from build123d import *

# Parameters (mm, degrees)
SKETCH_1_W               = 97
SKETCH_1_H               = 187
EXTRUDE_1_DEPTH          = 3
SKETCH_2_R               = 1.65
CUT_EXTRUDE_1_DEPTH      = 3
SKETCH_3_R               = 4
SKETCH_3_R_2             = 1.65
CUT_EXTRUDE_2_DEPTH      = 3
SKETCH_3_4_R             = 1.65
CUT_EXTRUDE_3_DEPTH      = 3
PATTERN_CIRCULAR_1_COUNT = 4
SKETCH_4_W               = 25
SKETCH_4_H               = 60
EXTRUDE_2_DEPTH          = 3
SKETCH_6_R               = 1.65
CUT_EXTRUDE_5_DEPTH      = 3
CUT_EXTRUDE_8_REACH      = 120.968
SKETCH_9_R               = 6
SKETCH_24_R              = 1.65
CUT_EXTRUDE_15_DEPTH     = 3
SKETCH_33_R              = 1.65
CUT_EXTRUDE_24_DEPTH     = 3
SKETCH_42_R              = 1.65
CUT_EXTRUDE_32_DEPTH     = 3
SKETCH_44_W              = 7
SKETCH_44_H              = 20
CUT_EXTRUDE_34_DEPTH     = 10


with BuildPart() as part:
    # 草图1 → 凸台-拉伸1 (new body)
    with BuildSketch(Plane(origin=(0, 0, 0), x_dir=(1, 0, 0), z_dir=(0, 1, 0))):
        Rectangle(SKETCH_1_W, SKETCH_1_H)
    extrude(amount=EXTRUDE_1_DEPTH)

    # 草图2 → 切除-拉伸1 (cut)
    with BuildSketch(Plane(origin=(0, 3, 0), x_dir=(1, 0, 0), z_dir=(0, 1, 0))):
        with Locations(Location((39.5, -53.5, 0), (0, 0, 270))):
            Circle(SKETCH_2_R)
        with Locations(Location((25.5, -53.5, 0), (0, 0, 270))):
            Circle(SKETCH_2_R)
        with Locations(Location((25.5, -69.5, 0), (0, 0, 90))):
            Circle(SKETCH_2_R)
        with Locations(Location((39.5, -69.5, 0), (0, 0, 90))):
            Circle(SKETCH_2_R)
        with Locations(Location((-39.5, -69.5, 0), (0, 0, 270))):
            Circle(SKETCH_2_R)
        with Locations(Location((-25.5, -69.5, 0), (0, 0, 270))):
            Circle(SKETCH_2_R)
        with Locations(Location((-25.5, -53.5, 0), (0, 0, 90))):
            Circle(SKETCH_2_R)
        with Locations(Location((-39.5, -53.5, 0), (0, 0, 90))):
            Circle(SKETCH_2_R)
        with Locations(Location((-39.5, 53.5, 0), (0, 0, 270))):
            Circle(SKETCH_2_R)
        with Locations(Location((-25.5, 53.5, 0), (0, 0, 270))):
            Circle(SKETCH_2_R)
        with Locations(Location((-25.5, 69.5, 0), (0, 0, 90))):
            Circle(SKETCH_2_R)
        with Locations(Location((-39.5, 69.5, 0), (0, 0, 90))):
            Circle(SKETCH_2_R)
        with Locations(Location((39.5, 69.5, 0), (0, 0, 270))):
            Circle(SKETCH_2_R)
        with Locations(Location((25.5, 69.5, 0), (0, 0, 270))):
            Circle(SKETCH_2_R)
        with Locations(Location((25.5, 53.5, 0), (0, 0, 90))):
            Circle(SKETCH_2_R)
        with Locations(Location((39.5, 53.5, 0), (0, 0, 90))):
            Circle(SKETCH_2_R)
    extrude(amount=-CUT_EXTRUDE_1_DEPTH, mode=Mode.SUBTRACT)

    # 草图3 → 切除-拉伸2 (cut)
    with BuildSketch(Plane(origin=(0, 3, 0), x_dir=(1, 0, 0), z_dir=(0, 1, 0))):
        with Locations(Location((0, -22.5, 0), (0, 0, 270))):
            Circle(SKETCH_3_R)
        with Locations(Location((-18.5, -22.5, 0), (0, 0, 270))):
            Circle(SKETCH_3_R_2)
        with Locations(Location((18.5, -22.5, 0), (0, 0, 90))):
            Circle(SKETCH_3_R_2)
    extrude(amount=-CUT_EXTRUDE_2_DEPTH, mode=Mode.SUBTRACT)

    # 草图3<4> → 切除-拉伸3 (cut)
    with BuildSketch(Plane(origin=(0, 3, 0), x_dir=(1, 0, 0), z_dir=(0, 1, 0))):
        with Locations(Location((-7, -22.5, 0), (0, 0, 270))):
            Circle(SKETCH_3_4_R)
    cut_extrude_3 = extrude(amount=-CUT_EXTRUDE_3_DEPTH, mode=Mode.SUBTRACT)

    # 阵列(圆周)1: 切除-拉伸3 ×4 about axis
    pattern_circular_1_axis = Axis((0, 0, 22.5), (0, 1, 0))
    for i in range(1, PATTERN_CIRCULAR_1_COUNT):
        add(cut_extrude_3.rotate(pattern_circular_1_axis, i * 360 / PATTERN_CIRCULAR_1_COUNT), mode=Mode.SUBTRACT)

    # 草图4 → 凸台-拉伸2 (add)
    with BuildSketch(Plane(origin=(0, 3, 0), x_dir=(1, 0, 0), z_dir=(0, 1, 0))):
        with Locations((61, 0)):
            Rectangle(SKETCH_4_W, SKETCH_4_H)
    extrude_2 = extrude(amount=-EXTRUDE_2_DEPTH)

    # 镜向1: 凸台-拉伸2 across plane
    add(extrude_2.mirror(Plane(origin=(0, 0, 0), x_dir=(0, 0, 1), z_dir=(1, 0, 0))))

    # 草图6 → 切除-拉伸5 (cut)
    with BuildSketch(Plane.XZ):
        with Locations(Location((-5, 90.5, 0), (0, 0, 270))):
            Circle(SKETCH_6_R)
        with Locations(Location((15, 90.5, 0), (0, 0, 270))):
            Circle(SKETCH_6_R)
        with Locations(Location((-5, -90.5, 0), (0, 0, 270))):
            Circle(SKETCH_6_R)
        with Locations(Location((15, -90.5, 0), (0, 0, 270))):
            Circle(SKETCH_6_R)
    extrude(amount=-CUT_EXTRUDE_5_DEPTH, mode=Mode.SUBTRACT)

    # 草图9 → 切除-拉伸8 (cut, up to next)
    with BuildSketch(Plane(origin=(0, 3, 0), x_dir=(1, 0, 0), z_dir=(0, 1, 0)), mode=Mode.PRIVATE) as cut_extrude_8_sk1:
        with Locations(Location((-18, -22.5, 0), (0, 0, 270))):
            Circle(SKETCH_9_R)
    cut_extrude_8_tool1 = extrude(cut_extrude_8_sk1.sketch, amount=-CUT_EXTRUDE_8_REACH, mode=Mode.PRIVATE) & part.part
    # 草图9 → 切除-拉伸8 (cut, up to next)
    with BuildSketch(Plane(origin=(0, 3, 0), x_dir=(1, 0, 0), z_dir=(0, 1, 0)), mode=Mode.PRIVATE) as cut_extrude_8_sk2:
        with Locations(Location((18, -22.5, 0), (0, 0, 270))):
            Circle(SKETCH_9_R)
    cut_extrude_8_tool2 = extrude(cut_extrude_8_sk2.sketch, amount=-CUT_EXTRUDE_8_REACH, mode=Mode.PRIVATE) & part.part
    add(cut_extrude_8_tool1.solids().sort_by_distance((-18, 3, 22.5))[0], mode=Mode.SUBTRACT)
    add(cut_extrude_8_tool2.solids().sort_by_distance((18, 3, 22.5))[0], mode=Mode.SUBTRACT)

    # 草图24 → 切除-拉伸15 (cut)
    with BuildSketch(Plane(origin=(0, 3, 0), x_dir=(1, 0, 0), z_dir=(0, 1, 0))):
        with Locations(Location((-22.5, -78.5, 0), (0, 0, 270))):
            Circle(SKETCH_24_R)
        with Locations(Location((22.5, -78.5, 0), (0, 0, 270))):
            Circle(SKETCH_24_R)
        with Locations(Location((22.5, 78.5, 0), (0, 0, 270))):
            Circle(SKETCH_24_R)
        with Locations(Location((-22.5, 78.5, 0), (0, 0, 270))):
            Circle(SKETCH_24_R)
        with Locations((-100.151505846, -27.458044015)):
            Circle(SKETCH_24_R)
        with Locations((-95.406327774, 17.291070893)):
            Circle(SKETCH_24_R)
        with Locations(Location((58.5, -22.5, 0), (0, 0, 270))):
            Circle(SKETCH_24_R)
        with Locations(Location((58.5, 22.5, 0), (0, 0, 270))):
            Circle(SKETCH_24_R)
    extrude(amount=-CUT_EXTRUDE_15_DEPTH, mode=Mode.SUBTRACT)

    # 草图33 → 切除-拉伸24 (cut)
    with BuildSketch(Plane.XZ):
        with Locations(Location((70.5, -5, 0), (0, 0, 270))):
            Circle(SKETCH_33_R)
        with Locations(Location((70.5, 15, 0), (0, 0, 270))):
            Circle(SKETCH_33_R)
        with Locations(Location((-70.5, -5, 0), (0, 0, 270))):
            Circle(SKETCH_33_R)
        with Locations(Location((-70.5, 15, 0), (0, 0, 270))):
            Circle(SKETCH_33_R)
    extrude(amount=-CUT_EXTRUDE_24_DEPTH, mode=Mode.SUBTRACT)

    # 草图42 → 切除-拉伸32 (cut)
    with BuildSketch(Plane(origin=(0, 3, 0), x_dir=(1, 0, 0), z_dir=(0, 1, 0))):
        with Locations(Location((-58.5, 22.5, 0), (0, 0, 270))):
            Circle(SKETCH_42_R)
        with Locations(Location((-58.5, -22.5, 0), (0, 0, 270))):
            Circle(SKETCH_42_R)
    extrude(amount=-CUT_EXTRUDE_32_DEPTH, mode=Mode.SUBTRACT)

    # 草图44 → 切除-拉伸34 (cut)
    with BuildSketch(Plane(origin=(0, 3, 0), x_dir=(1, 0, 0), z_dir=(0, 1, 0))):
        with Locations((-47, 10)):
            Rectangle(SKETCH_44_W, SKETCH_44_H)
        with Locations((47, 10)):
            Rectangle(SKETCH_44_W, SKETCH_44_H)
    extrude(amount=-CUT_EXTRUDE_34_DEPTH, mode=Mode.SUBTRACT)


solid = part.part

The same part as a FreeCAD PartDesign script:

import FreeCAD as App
import Part
import Sketcher

V = App.Vector
Q = App.Units.Quantity


def add_polygon(sketch, points):
    """Adds a closed chain of lines whose ends are joined by coincident constraints."""
    first, n = sketch.GeometryCount, len(points)
    for a, b in zip(points, points[1:] + points[:1]):
        sketch.addGeometry(Part.LineSegment(App.Vector(*a, 0), App.Vector(*b, 0)), False)
    for i in range(n):
        sketch.addConstraint(Sketcher.Constraint("Coincident", first + i, 2, first + (i + 1) % n, 1))

doc = App.newDocument("Part")
body = doc.addObject("PartDesign::Body", "Body")

# Sketch on XZ plane
sketch1 = body.newObject("Sketcher::SketchObject", "Sketch")
sketch1.AttachmentSupport = (doc.getObject("XZ_Plane"), [""])
sketch1.MapMode = "FlatFace"
add_polygon(sketch1, [(-48, -94), (-48, 94), (48, 94), (48, -94)])  # lines 0-3
sketch1.addConstraint([
    Sketcher.Constraint("Vertical", 0),
    Sketcher.Constraint("Horizontal", 1),
    Sketcher.Constraint("Vertical", 2),
    Sketcher.Constraint("Horizontal", 3),
    Sketcher.Constraint("Symmetric", 0, 2, 2, 2, -1, 1),
    Sketcher.Constraint("DistanceX", 1, 1, 1, 2, Q("97 mm")),
    Sketcher.Constraint("DistanceY", 0, 1, 0, 2, Q("187 mm")),
])
pad1 = body.newObject("PartDesign::Pad", "Pad")
pad1.Profile = sketch1
pad1.Length = 3
pad1.Reversed = True

# Sketch on XZ plane
sketch2 = body.newObject("Sketcher::SketchObject", "Sketch001")
sketch2.AttachmentSupport = (doc.getObject("XZ_Plane"), [""])
sketch2.MapMode = "FlatFace"
sketch2.AttachmentOffset = App.Placement(V(0, 0, -3), App.Rotation())
sketch2.addGeometry([
    Part.Circle(V(39.5, 53.5, 0), V(0, 0, 1), 1.6),  # 0
    Part.Circle(V(25.5, 53.5, 0), V(0, 0, 1), 1.6),  # 1
    Part.Circle(V(25.5, 69.5, 0), V(0, 0, 1), 1.6),  # 2
    Part.Circle(V(39.5, 69.5, 0), V(0, 0, 1), 1.6),  # 3
    Part.Circle(V(-39.5, 69.5, 0), V(0, 0, 1), 1.6),  # 4
    Part.Circle(V(-25.5, 69.5, 0), V(0, 0, 1), 1.6),  # 5
    Part.Circle(V(-25.5, 53.5, 0), V(0, 0, 1), 1.6),  # 6
    Part.Circle(V(-39.5, 53.5, 0), V(0, 0, 1), 1.6),  # 7
    Part.Circle(V(-39.5, -53.5, 0), V(0, 0, 1), 1.6),  # 8
    Part.Circle(V(-25.5, -53.5, 0), V(0, 0, 1), 1.6),  # 9
    Part.Circle(V(-25.5, -69.5, 0), V(0, 0, 1), 1.6),  # 10
    Part.Circle(V(-39.5, -69.5, 0), V(0, 0, 1), 1.6),  # 11
    Part.Circle(V(39.5, -69.5, 0), V(0, 0, 1), 1.6),  # 12
    Part.Circle(V(25.5, -69.5, 0), V(0, 0, 1), 1.6),  # 13
    Part.Circle(V(25.5, -53.5, 0), V(0, 0, 1), 1.6),  # 14
    Part.Circle(V(39.5, -53.5, 0), V(0, 0, 1), 1.6),  # 15
], False)
sketch2.addConstraint([
    Sketcher.Constraint("Equal", 0, 1),
    Sketcher.Constraint("Equal", 1, 2),
    Sketcher.Constraint("Equal", 2, 3),
    Sketcher.Constraint("Equal", 3, 4),
    Sketcher.Constraint("Equal", 4, 5),
    Sketcher.Constraint("Equal", 5, 6),
    Sketcher.Constraint("Equal", 6, 7),
    Sketcher.Constraint("Equal", 7, 8),
    Sketcher.Constraint("Equal", 8, 9),
    Sketcher.Constraint("Equal", 9, 10),
    Sketcher.Constraint("Equal", 10, 11),
    Sketcher.Constraint("Equal", 11, 12),
    Sketcher.Constraint("Equal", 12, 13),
    Sketcher.Constraint("Equal", 13, 14),
    Sketcher.Constraint("Equal", 14, 15),
    Sketcher.Constraint("Symmetric", 0, 3, 8, 3, -1, 1),
    Sketcher.Constraint("Symmetric", 1, 3, 9, 3, -1, 1),
    Sketcher.Constraint("Symmetric", 2, 3, 10, 3, -1, 1),
    Sketcher.Constraint("Symmetric", 3, 3, 11, 3, -1, 1),
    Sketcher.Constraint("Symmetric", 4, 3, 12, 3, -1, 1),
    Sketcher.Constraint("Symmetric", 5, 3, 13, 3, -1, 1),
    Sketcher.Constraint("Symmetric", 6, 3, 14, 3, -1, 1),
    Sketcher.Constraint("Symmetric", 7, 3, 15, 3, -1, 1),
    Sketcher.Constraint("Symmetric", 3, 3, 4, 3, -2),
    Sketcher.Constraint("Symmetric", 2, 3, 5, 3, -2),
    Sketcher.Constraint("Symmetric", 1, 3, 6, 3, -2),
    Sketcher.Constraint("Symmetric", 0, 3, 7, 3, -2),
    Sketcher.Constraint("Horizontal", 0, 3, 1, 3),
    Sketcher.Constraint("Horizontal", 2, 3, 3, 3),
    Sketcher.Constraint("Vertical", 1, 3, 2, 3),
    Sketcher.Constraint("Vertical", 0, 3, 3, 3),
    Sketcher.Constraint("Diameter", 0, Q("3.3 mm")),
    Sketcher.Constraint("DistanceX", 1, 3, 0, 3, Q("14 mm")),
    Sketcher.Constraint("DistanceY", 1, 3, 2, 3, Q("16 mm")),
    Sketcher.Constraint("DistanceX", 4, 3, 2, 3, Q("65 mm")),
    Sketcher.Constraint("DistanceY", 8, 3, 7, 3, Q("107 mm")),
])
pocket1 = body.newObject("PartDesign::Pocket", "Pocket")
pocket1.Profile = sketch2
pocket1.Length = 3
pocket1.Reversed = True

# Sketch on XZ plane
sketch3 = body.newObject("Sketcher::SketchObject", "Sketch002")
sketch3.AttachmentSupport = (doc.getObject("XZ_Plane"), [""])
sketch3.MapMode = "FlatFace"
sketch3.AttachmentOffset = App.Placement(V(0, 0, -3), App.Rotation())
sketch3.addGeometry([
    Part.Circle(V(0, 22.5, 0), V(0, 0, 1), 4),
    Part.Circle(V(-18.5, 22.5, 0), V(0, 0, 1), 1.6),
    Part.Circle(V(18.5, 22.5, 0), V(0, 0, 1), 1.6),
], False)
sketch3.addConstraint([
    Sketcher.Constraint("Equal", 1, 2),
    Sketcher.Constraint("Symmetric", 1, 3, 2, 3, -2),
    Sketcher.Constraint("PointOnObject", 0, 3, -2),
    Sketcher.Constraint("Horizontal", 0, 3, 1, 3),
    Sketcher.Constraint("Diameter", 0, Q("8 mm")),
    Sketcher.Constraint("Diameter", 1, Q("3.3 mm")),
    Sketcher.Constraint("DistanceX", 1, 3, 2, 3, Q("37 mm")),
    Sketcher.Constraint("DistanceY", -1, 1, 0, 3, Q("22.5 mm")),
])
pocket2 = body.newObject("PartDesign::Pocket", "Pocket001")
pocket2.Profile = sketch3
pocket2.Length = 3
pocket2.Reversed = True

# Sketch on XZ plane
sketch4 = body.newObject("Sketcher::SketchObject", "Sketch003")
sketch4.AttachmentSupport = (doc.getObject("XZ_Plane"), [""])
sketch4.MapMode = "FlatFace"
sketch4.AttachmentOffset = App.Placement(V(0, 0, -3), App.Rotation())
sketch4.addGeometry(Part.Circle(V(-7, 22.5, 0), V(0, 0, 1), 1.6), False)
sketch4.addConstraint([
    Sketcher.Constraint("Diameter", 0, Q("3.3 mm")),
    Sketcher.Constraint("DistanceX", 0, 3, -1, 1, Q("7 mm")),
    Sketcher.Constraint("DistanceY", -1, 1, 0, 3, Q("22.5 mm")),
])
pocket3 = body.newObject("PartDesign::Pocket", "Pocket002")
pocket3.Profile = sketch4
pocket3.Length = 3
pocket3.Reversed = True
doc.recompute()

datumline = body.newObject("PartDesign::Line", "DatumLine")
datumline.Placement = App.Placement(V(0, 0, 22.5), App.Rotation(V(0, 0, 1), V(0, 1, 0)))
polarpattern = body.newObject("PartDesign::PolarPattern", "PolarPattern")
polarpattern.Originals = [pocket3]
polarpattern.Axis = (datumline, [""])
polarpattern.Angle = 360
polarpattern.Occurrences = 4
body.Tip = polarpattern

# Sketch on XZ plane
sketch5 = body.newObject("Sketcher::SketchObject", "Sketch004")
sketch5.AttachmentSupport = (doc.getObject("XZ_Plane"), [""])
sketch5.MapMode = "FlatFace"
sketch5.AttachmentOffset = App.Placement(V(0, 0, -3), App.Rotation())
add_polygon(sketch5, [(48, -30), (48, 30), (74, 30), (74, -30)])  # lines 0-3
sketch5.addConstraint([
    Sketcher.Constraint("Vertical", 0),
    Sketcher.Constraint("Horizontal", 1),
    Sketcher.Constraint("Vertical", 2),
    Sketcher.Constraint("Horizontal", 3),
    Sketcher.Constraint("DistanceX", 1, 1, 1, 2, Q("25 mm")),
    Sketcher.Constraint("DistanceY", 0, 1, 0, 2, Q("60 mm")),
    Sketcher.Constraint("DistanceY", -1, 1, 0, 2, Q("30 mm")),
    Sketcher.Constraint("DistanceX", -1, 1, 0, 2, Q("48.5 mm")),
])
pad2 = body.newObject("PartDesign::Pad", "Pad001")
pad2.Profile = sketch5
pad2.Length = 3
doc.recompute()

mirrored = body.newObject("PartDesign::Mirrored", "Mirrored")
mirrored.Originals = [pad2]
mirrored.MirrorPlane = (doc.getObject("YZ_Plane"), [""])
body.Tip = mirrored

# Sketch on XZ plane
sketch6 = body.newObject("Sketcher::SketchObject", "Sketch005")
sketch6.AttachmentSupport = (doc.getObject("XZ_Plane"), [""])
sketch6.MapMode = "FlatFace"
sketch6.addGeometry([
    Part.Circle(V(-5, 90.5, 0), V(0, 0, 1), 1.6),
    Part.Circle(V(15, 90.5, 0), V(0, 0, 1), 1.6),
    Part.Circle(V(-5, -90.5, 0), V(0, 0, 1), 1.6),
    Part.Circle(V(15, -90.5, 0), V(0, 0, 1), 1.6),
], False)
sketch6.addConstraint([
    Sketcher.Constraint("Equal", 0, 1),
    Sketcher.Constraint("Equal", 1, 2),
    Sketcher.Constraint("Equal", 2, 3),
    Sketcher.Constraint("Symmetric", 0, 3, 2, 3, -1),
    Sketcher.Constraint("Symmetric", 1, 3, 3, 3, -1),
    Sketcher.Constraint("Horizontal", 0, 3, 1, 3),
    Sketcher.Constraint("Diameter", 0, Q("3.3 mm")),
    Sketcher.Constraint("DistanceX", 0, 3, -1, 1, Q("5 mm")),
    Sketcher.Constraint("DistanceX", -1, 1, 1, 3, Q("15 mm")),
    Sketcher.Constraint("DistanceY", 2, 3, 0, 3, Q("181 mm")),
])
pocket4 = body.newObject("PartDesign::Pocket", "Pocket003")
pocket4.Profile = sketch6
pocket4.Length = 3

# Sketch on XZ plane
sketch7 = body.newObject("Sketcher::SketchObject", "Sketch006")
sketch7.AttachmentSupport = (doc.getObject("XZ_Plane"), [""])
sketch7.MapMode = "FlatFace"
sketch7.AttachmentOffset = App.Placement(V(0, 0, -3), App.Rotation())
sketch7.addGeometry(Part.Circle(V(-18, 22, 0), V(0, 0, 1), 6), False)
sketch7.addConstraint([
    Sketcher.Constraint("Diameter", 0, Q("12 mm")),
    Sketcher.Constraint("DistanceX", 0, 3, -1, 1, Q("18 mm")),
    Sketcher.Constraint("DistanceY", -1, 1, 0, 3, Q("22.5 mm")),
])
pocket5 = body.newObject("PartDesign::Pocket", "Pocket004")
pocket5.Profile = sketch7
pocket5.Length = 3
pocket5.Reversed = True

# Sketch on XZ plane
sketch8 = body.newObject("Sketcher::SketchObject", "Sketch007")
sketch8.AttachmentSupport = (doc.getObject("XZ_Plane"), [""])
sketch8.MapMode = "FlatFace"
sketch8.AttachmentOffset = App.Placement(V(0, 0, -3), App.Rotation())
sketch8.addGeometry(Part.Circle(V(18, 22, 0), V(0, 0, 1), 6), False)
sketch8.addConstraint([
    Sketcher.Constraint("Diameter", 0, Q("12 mm")),
    Sketcher.Constraint("DistanceX", -1, 1, 0, 3, Q("18 mm")),
    Sketcher.Constraint("DistanceY", -1, 1, 0, 3, Q("22.5 mm")),
])
pocket6 = body.newObject("PartDesign::Pocket", "Pocket005")
pocket6.Profile = sketch8
pocket6.Length = 3
pocket6.Reversed = True

# Sketch on XZ plane
sketch9 = body.newObject("Sketcher::SketchObject", "Sketch008")
sketch9.AttachmentSupport = (doc.getObject("XZ_Plane"), [""])
sketch9.MapMode = "FlatFace"
sketch9.AttachmentOffset = App.Placement(V(0, 0, -3), App.Rotation())
sketch9.addGeometry([
    Part.Circle(V(-22.5, 78.5, 0), V(0, 0, 1), 1.6),  # 0
    Part.Circle(V(22.5, 78.5, 0), V(0, 0, 1), 1.6),  # 1
    Part.Circle(V(22.5, -78.5, 0), V(0, 0, 1), 1.6),  # 2
    Part.Circle(V(-22.5, -78.5, 0), V(0, 0, 1), 1.6),  # 3
    Part.Circle(V(-100.2, 27.5, 0), V(0, 0, 1), 1.6),  # 4
    Part.Circle(V(-95.4, -17.3, 0), V(0, 0, 1), 1.6),  # 5
    Part.Circle(V(58.5, 22.5, 0), V(0, 0, 1), 1.6),  # 6
    Part.Circle(V(58.5, -22.5, 0), V(0, 0, 1), 1.6),  # 7
], False)
sketch9.addConstraint([
    Sketcher.Constraint("Equal", 0, 1),
    Sketcher.Constraint("Equal", 1, 2),
    Sketcher.Constraint("Equal", 2, 3),
    Sketcher.Constraint("Equal", 3, 4),
    Sketcher.Constraint("Equal", 4, 5),
    Sketcher.Constraint("Equal", 5, 6),
    Sketcher.Constraint("Equal", 6, 7),
    Sketcher.Constraint("Symmetric", 0, 3, 2, 3, -1, 1),
    Sketcher.Constraint("Symmetric", 1, 3, 3, 3, -1, 1),
    Sketcher.Constraint("Symmetric", 0, 3, 1, 3, -2),
    Sketcher.Constraint("Symmetric", 6, 3, 7, 3, -1),
    Sketcher.Constraint("Diameter", 0, Q("3.3 mm")),
    Sketcher.Constraint("DistanceX", 0, 3, 1, 3, Q("45 mm")),
    Sketcher.Constraint("DistanceY", 2, 3, 1, 3, Q("157 mm")),
    Sketcher.Constraint("DistanceX", 1, 3, 6, 3, Q("36 mm")),
    Sketcher.Constraint("DistanceY", 6, 3, 1, 3, Q("56 mm")),
    Sketcher.Constraint("DistanceY", 5, 3, -1, 1, Q("17.291071 mm")),
    Sketcher.Constraint("DistanceX", 4, 3, 5, 3, Q("4.745178 mm")),
    Sketcher.Constraint("DistanceX", 4, 3, -1, 1, Q("100.151506 mm")),
    Sketcher.Constraint("DistanceY", -1, 1, 4, 3, Q("27.458044 mm")),
])
pocket7 = body.newObject("PartDesign::Pocket", "Pocket006")
pocket7.Profile = sketch9
pocket7.Length = 3
pocket7.Reversed = True

# Sketch on XZ plane
sketch10 = body.newObject("Sketcher::SketchObject", "Sketch009")
sketch10.AttachmentSupport = (doc.getObject("XZ_Plane"), [""])
sketch10.MapMode = "FlatFace"
sketch10.addGeometry([
    Part.Circle(V(70.5, -5, 0), V(0, 0, 1), 1.6),
    Part.Circle(V(70.5, 15, 0), V(0, 0, 1), 1.6),
    Part.Circle(V(-70.5, -5, 0), V(0, 0, 1), 1.6),
    Part.Circle(V(-70.5, 15, 0), V(0, 0, 1), 1.6),
], False)
sketch10.addConstraint([
    Sketcher.Constraint("Equal", 0, 1),
    Sketcher.Constraint("Equal", 1, 2),
    Sketcher.Constraint("Equal", 2, 3),
    Sketcher.Constraint("Symmetric", 0, 3, 2, 3, -2),
    Sketcher.Constraint("Symmetric", 1, 3, 3, 3, -2),
    Sketcher.Constraint("Vertical", 0, 3, 1, 3),
    Sketcher.Constraint("Diameter", 0, Q("3.3 mm")),
    Sketcher.Constraint("DistanceY", 0, 3, -1, 1, Q("5 mm")),
    Sketcher.Constraint("DistanceY", -1, 1, 1, 3, Q("15 mm")),
    Sketcher.Constraint("DistanceX", 2, 3, 0, 3, Q("141 mm")),
])
pocket8 = body.newObject("PartDesign::Pocket", "Pocket007")
pocket8.Profile = sketch10
pocket8.Length = 3

# Sketch on XZ plane
sketch11 = body.newObject("Sketcher::SketchObject", "Sketch010")
sketch11.AttachmentSupport = (doc.getObject("XZ_Plane"), [""])
sketch11.MapMode = "FlatFace"
sketch11.AttachmentOffset = App.Placement(V(0, 0, -3), App.Rotation())
sketch11.addGeometry([
    Part.Circle(V(-58.5, -22.5, 0), V(0, 0, 1), 1.6),
    Part.Circle(V(-58.5, 22.5, 0), V(0, 0, 1), 1.6),
], False)
sketch11.addConstraint([
    Sketcher.Constraint("Equal", 0, 1),
    Sketcher.Constraint("Symmetric", 0, 3, 1, 3, -1),
    Sketcher.Constraint("Diameter", 0, Q("3.3 mm")),
    Sketcher.Constraint("DistanceY", 0, 3, 1, 3, Q("45 mm")),
    Sketcher.Constraint("DistanceX", 0, 3, -1, 1, Q("58.5 mm")),
])
pocket9 = body.newObject("PartDesign::Pocket", "Pocket008")
pocket9.Profile = sketch11
pocket9.Length = 3
pocket9.Reversed = True

# Sketch on XZ plane
sketch12 = body.newObject("Sketcher::SketchObject", "Sketch011")
sketch12.AttachmentSupport = (doc.getObject("XZ_Plane"), [""])
sketch12.MapMode = "FlatFace"
sketch12.AttachmentOffset = App.Placement(V(0, 0, -3), App.Rotation())
add_polygon(sketch12, [(-50, -20), (-50, 0), (-44, 0), (-44, -20)])  # lines 0-3
add_polygon(sketch12, [(44, -20), (44, 0), (50, 0), (50, -20)])  # lines 4-7
sketch12.addConstraint([
    Sketcher.Constraint("Vertical", 0),
    Sketcher.Constraint("Horizontal", 1),
    Sketcher.Constraint("Vertical", 2),
    Sketcher.Constraint("Horizontal", 3),
    Sketcher.Constraint("Vertical", 4),
    Sketcher.Constraint("Horizontal", 5),
    Sketcher.Constraint("Vertical", 6),
    Sketcher.Constraint("Horizontal", 7),
    Sketcher.Constraint("Symmetric", 1, 2, 4, 2, -1, 1),
    Sketcher.Constraint("Symmetric", 0, 2, 5, 2, -2),
    Sketcher.Constraint("Horizontal", 3, 2, 6, 2),
    Sketcher.Constraint("DistanceX", 1, 1, 1, 2, Q("7 mm")),
    Sketcher.Constraint("DistanceY", 0, 1, 0, 2, Q("20 mm")),
    Sketcher.Constraint("DistanceX", 1, 2, 4, 2, Q("87 mm")),
])
pocket10 = body.newObject("PartDesign::Pocket", "Pocket009")
pocket10.Profile = sketch12
pocket10.Length = 10
pocket10.Reversed = True

doc.recompute()
